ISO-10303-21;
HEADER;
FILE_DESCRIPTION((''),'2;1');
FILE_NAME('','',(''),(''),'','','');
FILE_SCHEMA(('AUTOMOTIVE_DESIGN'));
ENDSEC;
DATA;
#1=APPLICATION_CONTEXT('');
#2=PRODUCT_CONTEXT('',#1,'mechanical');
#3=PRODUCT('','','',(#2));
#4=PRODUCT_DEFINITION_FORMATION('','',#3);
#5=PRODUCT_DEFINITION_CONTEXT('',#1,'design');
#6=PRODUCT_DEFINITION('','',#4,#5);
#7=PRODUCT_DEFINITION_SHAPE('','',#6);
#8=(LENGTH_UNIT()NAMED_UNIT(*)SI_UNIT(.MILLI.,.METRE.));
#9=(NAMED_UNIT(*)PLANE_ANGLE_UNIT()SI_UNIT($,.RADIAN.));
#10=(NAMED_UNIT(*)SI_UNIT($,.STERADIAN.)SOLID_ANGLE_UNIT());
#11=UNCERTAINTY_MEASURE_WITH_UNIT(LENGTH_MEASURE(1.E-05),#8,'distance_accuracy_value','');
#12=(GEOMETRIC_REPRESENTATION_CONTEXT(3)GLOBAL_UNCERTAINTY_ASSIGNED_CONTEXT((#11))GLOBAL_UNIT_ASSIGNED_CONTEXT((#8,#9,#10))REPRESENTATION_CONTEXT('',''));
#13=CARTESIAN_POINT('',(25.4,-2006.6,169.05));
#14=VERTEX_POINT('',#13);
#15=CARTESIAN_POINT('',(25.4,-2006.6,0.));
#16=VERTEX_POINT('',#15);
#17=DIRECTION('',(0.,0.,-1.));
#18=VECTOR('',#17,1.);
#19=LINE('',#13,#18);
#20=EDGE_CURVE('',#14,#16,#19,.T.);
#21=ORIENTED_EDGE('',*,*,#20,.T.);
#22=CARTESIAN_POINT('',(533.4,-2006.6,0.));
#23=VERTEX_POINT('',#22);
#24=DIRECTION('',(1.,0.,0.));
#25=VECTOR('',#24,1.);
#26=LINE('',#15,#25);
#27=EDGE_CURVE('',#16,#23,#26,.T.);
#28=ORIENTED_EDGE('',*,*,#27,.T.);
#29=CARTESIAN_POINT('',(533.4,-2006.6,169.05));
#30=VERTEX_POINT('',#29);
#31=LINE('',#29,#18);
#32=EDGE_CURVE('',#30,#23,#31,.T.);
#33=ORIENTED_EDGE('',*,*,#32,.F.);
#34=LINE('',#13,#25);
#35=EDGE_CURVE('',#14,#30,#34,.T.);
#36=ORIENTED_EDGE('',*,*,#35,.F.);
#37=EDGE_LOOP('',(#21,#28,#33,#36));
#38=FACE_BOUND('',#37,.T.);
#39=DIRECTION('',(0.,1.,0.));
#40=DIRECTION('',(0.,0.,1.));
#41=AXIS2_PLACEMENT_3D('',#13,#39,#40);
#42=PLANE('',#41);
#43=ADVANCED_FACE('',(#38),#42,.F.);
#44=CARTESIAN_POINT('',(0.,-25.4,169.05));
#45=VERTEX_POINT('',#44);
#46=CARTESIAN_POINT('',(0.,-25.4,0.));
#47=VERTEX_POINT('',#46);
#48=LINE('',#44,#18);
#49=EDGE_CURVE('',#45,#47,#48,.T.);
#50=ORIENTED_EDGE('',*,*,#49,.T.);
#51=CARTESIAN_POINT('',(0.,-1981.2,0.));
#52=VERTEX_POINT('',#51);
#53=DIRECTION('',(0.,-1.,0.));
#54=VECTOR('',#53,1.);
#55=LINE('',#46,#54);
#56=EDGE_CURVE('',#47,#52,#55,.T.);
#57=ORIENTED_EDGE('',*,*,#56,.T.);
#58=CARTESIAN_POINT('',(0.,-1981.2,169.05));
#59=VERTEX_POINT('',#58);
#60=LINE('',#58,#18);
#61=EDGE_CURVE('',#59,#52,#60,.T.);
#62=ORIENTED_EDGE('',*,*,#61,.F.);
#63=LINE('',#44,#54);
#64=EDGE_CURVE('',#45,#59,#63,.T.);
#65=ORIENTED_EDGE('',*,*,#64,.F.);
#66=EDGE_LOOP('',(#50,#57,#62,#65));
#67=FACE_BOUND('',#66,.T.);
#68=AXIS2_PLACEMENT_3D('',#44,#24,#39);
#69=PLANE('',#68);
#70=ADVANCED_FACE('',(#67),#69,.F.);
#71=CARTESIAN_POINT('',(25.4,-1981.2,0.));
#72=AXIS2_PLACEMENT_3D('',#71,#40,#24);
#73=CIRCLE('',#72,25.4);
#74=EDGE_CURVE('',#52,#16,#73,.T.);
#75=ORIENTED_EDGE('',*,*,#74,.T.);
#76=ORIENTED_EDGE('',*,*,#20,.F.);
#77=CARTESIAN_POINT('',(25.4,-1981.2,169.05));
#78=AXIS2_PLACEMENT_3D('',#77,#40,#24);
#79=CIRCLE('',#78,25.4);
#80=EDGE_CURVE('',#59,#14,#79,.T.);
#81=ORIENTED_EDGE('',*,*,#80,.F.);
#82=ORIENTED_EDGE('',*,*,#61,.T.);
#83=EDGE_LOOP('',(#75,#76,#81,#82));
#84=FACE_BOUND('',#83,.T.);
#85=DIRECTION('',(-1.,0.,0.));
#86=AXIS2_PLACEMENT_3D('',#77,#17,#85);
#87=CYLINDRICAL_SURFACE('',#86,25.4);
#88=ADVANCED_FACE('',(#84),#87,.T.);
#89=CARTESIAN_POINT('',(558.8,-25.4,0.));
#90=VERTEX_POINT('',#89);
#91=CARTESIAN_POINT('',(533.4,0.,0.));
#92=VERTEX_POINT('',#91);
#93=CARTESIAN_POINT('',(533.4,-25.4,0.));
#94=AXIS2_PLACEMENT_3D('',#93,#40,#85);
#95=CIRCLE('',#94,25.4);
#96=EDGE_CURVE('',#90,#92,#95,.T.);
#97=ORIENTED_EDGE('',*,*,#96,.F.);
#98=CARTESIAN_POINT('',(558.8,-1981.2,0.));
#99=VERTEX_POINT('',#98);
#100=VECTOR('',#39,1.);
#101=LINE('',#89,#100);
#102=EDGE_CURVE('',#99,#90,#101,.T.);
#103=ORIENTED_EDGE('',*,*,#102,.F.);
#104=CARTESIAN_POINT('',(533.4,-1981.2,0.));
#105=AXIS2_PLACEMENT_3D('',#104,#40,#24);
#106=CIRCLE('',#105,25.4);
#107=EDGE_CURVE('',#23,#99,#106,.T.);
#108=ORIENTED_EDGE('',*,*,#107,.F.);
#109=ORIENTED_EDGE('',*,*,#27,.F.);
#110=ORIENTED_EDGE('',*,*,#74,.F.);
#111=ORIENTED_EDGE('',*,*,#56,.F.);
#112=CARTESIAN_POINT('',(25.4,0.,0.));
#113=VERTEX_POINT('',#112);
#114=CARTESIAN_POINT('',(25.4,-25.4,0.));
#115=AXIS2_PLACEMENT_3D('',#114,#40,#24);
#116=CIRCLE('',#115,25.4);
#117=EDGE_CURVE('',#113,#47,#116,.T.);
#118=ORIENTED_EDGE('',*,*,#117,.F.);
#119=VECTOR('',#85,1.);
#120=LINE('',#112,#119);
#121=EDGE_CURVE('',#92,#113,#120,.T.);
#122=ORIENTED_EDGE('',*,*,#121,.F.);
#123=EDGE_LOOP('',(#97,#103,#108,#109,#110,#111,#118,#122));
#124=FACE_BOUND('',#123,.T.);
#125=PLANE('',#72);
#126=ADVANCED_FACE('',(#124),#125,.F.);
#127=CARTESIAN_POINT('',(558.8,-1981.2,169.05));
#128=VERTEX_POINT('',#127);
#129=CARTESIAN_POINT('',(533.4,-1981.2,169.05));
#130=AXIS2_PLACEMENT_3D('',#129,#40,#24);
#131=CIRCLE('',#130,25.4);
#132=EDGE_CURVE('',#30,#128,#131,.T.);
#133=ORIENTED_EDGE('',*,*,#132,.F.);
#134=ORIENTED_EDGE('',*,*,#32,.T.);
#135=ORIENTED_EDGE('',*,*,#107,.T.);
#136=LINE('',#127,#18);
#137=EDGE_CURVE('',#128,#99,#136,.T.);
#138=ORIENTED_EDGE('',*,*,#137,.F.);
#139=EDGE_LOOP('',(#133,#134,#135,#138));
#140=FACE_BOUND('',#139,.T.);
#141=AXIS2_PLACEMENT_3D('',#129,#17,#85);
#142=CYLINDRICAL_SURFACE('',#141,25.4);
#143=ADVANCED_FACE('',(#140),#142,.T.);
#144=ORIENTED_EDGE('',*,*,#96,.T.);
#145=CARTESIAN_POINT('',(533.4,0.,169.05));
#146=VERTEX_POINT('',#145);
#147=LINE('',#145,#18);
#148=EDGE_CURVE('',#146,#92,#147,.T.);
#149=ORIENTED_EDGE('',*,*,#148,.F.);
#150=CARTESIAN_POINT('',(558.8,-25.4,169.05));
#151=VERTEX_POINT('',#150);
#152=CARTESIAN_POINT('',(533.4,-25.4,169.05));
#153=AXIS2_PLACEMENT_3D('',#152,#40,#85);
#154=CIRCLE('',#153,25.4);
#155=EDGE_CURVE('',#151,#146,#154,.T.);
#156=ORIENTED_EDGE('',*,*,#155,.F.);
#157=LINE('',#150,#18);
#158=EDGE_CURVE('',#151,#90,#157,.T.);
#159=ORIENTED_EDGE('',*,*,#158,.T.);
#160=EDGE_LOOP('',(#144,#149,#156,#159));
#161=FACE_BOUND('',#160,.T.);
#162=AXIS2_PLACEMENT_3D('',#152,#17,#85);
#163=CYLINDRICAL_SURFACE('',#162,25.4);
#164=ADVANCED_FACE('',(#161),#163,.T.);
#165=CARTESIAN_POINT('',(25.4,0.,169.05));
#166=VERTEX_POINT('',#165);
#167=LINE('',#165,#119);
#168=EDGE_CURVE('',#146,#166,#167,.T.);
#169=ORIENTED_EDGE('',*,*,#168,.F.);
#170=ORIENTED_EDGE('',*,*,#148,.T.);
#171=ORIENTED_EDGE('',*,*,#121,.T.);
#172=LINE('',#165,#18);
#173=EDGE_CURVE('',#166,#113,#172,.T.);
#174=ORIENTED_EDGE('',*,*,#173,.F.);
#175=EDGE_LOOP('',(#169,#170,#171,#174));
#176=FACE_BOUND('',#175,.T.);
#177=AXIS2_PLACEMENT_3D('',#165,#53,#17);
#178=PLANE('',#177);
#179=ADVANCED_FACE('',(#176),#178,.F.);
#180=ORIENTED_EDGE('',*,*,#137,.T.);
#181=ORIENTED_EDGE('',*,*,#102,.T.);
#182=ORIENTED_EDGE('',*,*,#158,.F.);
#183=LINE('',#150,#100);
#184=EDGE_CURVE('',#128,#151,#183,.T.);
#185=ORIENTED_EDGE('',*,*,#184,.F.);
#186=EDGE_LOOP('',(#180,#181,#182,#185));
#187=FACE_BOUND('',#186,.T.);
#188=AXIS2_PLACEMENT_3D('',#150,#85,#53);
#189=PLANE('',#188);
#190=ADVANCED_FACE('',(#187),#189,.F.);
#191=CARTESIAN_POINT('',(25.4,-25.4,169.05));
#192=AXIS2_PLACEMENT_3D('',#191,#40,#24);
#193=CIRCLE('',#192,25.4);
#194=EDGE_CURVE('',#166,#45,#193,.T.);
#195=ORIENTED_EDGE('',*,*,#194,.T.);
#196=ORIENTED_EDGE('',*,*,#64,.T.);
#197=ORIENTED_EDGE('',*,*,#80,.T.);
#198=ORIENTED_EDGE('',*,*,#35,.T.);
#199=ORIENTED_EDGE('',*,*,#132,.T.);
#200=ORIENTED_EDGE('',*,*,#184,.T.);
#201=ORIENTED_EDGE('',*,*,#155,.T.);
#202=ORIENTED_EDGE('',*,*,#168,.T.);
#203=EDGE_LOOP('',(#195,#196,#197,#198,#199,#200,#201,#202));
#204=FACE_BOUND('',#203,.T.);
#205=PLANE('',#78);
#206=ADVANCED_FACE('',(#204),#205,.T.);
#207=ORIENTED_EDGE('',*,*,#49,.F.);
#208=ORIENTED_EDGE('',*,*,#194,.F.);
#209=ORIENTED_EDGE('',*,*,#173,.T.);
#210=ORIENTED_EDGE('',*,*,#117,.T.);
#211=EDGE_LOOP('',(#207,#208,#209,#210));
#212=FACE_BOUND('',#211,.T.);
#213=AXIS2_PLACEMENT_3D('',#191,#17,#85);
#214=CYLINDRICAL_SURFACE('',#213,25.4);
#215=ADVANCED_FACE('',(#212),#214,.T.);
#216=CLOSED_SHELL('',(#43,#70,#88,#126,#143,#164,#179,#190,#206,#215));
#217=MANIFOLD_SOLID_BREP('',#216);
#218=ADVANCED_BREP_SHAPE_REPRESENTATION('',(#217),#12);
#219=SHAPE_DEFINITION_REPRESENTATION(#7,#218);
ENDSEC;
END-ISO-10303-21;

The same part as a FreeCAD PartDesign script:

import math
import FreeCAD as App
import Part
import Sketcher

V = App.Vector
Q = App.Units.Quantity

doc = App.newDocument("Part")
params = doc.addObject("Spreadsheet::Sheet", "Params")
for row, (alias, value) in enumerate([
    ("sketch1_radius", "1 in"),
    ("sketch1_width", "20 in"),
    ("sketch1_height", "77 in"),
    ("pad1_length", "169.05 mm"),
], start=1):
    params.set(f"A{row}", alias)
    params.set(f"B{row}", "=" + value)
    params.setAlias(f"B{row}", alias)

body = doc.addObject("PartDesign::Body", "Body")

sketch1 = body.newObject("Sketcher::SketchObject", "Sketch")
sketch1.AttachmentSupport = (doc.getObject("XY_Plane"), [""])
sketch1.MapMode = "FlatFace"
sketch1.addGeometry([
    Part.LineSegment(V(533, 0, 0), V(25, 0, 0)),
    Part.ArcOfCircle(Part.Circle(V(25, -25, 0), V(0, 0, 1), 25), math.radians(90), math.radians(180)),
    Part.LineSegment(V(0, -25, 0), V(0, -1981, 0)),
    Part.ArcOfCircle(Part.Circle(V(25, -1981, 0), V(0, 0, 1), 25), math.radians(180), math.radians(270)),
    Part.LineSegment(V(25, -2007, 0), V(533, -2007, 0)),
    Part.ArcOfCircle(Part.Circle(V(533, -1981, 0), V(0, 0, 1), 25), math.radians(-90), math.radians(0)),
    Part.LineSegment(V(559, -1981, 0), V(559, -25, 0)),
    Part.ArcOfCircle(Part.Circle(V(533, -25, 0), V(0, 0, 1), 25), math.radians(0), math.radians(90)),
], False)
sketch1.addConstraint([
    Sketcher.Constraint("Tangent", 0, 2, 1, 1),
    Sketcher.Constraint("Tangent", 1, 2, 2, 1),
    Sketcher.Constraint("Tangent", 2, 2, 3, 1),
    Sketcher.Constraint("Tangent", 3, 2, 4, 1),
    Sketcher.Constraint("Tangent", 4, 2, 5, 1),
    Sketcher.Constraint("Tangent", 5, 2, 6, 1),
    Sketcher.Constraint("Tangent", 6, 2, 7, 1),
    Sketcher.Constraint("Tangent", 7, 2, 0, 1),
    Sketcher.Constraint("Horizontal", 0),
    Sketcher.Constraint("Vertical", 2),
    Sketcher.Constraint("Horizontal", 4),
    Sketcher.Constraint("Vertical", 6),
    Sketcher.Constraint("Equal", 1, 3),
    Sketcher.Constraint("Equal", 3, 5),
    Sketcher.Constraint("Equal", 5, 7),
    Sketcher.Constraint("PointOnObject", 0, 2, -1),
    Sketcher.Constraint("PointOnObject", 1, 2, -2),
    Sketcher.Constraint("Radius", 1, Q("1 in")),
    Sketcher.Constraint("DistanceX", 0, 2, 0, 1, Q("20 in")),
    Sketcher.Constraint("DistanceY", 2, 2, 2, 1, Q("77 in")),
])
sketch1.setExpression("Constraints[17]", "Params.sketch1_radius")
sketch1.setExpression("Constraints[18]", "Params.sketch1_width")
sketch1.setExpression("Constraints[19]", "Params.sketch1_height")
pad1 = body.newObject("PartDesign::Pad", "Pad")
pad1.Profile = sketch1
pad1.setExpression("Length", "Params.pad1_length")

doc.recompute()
